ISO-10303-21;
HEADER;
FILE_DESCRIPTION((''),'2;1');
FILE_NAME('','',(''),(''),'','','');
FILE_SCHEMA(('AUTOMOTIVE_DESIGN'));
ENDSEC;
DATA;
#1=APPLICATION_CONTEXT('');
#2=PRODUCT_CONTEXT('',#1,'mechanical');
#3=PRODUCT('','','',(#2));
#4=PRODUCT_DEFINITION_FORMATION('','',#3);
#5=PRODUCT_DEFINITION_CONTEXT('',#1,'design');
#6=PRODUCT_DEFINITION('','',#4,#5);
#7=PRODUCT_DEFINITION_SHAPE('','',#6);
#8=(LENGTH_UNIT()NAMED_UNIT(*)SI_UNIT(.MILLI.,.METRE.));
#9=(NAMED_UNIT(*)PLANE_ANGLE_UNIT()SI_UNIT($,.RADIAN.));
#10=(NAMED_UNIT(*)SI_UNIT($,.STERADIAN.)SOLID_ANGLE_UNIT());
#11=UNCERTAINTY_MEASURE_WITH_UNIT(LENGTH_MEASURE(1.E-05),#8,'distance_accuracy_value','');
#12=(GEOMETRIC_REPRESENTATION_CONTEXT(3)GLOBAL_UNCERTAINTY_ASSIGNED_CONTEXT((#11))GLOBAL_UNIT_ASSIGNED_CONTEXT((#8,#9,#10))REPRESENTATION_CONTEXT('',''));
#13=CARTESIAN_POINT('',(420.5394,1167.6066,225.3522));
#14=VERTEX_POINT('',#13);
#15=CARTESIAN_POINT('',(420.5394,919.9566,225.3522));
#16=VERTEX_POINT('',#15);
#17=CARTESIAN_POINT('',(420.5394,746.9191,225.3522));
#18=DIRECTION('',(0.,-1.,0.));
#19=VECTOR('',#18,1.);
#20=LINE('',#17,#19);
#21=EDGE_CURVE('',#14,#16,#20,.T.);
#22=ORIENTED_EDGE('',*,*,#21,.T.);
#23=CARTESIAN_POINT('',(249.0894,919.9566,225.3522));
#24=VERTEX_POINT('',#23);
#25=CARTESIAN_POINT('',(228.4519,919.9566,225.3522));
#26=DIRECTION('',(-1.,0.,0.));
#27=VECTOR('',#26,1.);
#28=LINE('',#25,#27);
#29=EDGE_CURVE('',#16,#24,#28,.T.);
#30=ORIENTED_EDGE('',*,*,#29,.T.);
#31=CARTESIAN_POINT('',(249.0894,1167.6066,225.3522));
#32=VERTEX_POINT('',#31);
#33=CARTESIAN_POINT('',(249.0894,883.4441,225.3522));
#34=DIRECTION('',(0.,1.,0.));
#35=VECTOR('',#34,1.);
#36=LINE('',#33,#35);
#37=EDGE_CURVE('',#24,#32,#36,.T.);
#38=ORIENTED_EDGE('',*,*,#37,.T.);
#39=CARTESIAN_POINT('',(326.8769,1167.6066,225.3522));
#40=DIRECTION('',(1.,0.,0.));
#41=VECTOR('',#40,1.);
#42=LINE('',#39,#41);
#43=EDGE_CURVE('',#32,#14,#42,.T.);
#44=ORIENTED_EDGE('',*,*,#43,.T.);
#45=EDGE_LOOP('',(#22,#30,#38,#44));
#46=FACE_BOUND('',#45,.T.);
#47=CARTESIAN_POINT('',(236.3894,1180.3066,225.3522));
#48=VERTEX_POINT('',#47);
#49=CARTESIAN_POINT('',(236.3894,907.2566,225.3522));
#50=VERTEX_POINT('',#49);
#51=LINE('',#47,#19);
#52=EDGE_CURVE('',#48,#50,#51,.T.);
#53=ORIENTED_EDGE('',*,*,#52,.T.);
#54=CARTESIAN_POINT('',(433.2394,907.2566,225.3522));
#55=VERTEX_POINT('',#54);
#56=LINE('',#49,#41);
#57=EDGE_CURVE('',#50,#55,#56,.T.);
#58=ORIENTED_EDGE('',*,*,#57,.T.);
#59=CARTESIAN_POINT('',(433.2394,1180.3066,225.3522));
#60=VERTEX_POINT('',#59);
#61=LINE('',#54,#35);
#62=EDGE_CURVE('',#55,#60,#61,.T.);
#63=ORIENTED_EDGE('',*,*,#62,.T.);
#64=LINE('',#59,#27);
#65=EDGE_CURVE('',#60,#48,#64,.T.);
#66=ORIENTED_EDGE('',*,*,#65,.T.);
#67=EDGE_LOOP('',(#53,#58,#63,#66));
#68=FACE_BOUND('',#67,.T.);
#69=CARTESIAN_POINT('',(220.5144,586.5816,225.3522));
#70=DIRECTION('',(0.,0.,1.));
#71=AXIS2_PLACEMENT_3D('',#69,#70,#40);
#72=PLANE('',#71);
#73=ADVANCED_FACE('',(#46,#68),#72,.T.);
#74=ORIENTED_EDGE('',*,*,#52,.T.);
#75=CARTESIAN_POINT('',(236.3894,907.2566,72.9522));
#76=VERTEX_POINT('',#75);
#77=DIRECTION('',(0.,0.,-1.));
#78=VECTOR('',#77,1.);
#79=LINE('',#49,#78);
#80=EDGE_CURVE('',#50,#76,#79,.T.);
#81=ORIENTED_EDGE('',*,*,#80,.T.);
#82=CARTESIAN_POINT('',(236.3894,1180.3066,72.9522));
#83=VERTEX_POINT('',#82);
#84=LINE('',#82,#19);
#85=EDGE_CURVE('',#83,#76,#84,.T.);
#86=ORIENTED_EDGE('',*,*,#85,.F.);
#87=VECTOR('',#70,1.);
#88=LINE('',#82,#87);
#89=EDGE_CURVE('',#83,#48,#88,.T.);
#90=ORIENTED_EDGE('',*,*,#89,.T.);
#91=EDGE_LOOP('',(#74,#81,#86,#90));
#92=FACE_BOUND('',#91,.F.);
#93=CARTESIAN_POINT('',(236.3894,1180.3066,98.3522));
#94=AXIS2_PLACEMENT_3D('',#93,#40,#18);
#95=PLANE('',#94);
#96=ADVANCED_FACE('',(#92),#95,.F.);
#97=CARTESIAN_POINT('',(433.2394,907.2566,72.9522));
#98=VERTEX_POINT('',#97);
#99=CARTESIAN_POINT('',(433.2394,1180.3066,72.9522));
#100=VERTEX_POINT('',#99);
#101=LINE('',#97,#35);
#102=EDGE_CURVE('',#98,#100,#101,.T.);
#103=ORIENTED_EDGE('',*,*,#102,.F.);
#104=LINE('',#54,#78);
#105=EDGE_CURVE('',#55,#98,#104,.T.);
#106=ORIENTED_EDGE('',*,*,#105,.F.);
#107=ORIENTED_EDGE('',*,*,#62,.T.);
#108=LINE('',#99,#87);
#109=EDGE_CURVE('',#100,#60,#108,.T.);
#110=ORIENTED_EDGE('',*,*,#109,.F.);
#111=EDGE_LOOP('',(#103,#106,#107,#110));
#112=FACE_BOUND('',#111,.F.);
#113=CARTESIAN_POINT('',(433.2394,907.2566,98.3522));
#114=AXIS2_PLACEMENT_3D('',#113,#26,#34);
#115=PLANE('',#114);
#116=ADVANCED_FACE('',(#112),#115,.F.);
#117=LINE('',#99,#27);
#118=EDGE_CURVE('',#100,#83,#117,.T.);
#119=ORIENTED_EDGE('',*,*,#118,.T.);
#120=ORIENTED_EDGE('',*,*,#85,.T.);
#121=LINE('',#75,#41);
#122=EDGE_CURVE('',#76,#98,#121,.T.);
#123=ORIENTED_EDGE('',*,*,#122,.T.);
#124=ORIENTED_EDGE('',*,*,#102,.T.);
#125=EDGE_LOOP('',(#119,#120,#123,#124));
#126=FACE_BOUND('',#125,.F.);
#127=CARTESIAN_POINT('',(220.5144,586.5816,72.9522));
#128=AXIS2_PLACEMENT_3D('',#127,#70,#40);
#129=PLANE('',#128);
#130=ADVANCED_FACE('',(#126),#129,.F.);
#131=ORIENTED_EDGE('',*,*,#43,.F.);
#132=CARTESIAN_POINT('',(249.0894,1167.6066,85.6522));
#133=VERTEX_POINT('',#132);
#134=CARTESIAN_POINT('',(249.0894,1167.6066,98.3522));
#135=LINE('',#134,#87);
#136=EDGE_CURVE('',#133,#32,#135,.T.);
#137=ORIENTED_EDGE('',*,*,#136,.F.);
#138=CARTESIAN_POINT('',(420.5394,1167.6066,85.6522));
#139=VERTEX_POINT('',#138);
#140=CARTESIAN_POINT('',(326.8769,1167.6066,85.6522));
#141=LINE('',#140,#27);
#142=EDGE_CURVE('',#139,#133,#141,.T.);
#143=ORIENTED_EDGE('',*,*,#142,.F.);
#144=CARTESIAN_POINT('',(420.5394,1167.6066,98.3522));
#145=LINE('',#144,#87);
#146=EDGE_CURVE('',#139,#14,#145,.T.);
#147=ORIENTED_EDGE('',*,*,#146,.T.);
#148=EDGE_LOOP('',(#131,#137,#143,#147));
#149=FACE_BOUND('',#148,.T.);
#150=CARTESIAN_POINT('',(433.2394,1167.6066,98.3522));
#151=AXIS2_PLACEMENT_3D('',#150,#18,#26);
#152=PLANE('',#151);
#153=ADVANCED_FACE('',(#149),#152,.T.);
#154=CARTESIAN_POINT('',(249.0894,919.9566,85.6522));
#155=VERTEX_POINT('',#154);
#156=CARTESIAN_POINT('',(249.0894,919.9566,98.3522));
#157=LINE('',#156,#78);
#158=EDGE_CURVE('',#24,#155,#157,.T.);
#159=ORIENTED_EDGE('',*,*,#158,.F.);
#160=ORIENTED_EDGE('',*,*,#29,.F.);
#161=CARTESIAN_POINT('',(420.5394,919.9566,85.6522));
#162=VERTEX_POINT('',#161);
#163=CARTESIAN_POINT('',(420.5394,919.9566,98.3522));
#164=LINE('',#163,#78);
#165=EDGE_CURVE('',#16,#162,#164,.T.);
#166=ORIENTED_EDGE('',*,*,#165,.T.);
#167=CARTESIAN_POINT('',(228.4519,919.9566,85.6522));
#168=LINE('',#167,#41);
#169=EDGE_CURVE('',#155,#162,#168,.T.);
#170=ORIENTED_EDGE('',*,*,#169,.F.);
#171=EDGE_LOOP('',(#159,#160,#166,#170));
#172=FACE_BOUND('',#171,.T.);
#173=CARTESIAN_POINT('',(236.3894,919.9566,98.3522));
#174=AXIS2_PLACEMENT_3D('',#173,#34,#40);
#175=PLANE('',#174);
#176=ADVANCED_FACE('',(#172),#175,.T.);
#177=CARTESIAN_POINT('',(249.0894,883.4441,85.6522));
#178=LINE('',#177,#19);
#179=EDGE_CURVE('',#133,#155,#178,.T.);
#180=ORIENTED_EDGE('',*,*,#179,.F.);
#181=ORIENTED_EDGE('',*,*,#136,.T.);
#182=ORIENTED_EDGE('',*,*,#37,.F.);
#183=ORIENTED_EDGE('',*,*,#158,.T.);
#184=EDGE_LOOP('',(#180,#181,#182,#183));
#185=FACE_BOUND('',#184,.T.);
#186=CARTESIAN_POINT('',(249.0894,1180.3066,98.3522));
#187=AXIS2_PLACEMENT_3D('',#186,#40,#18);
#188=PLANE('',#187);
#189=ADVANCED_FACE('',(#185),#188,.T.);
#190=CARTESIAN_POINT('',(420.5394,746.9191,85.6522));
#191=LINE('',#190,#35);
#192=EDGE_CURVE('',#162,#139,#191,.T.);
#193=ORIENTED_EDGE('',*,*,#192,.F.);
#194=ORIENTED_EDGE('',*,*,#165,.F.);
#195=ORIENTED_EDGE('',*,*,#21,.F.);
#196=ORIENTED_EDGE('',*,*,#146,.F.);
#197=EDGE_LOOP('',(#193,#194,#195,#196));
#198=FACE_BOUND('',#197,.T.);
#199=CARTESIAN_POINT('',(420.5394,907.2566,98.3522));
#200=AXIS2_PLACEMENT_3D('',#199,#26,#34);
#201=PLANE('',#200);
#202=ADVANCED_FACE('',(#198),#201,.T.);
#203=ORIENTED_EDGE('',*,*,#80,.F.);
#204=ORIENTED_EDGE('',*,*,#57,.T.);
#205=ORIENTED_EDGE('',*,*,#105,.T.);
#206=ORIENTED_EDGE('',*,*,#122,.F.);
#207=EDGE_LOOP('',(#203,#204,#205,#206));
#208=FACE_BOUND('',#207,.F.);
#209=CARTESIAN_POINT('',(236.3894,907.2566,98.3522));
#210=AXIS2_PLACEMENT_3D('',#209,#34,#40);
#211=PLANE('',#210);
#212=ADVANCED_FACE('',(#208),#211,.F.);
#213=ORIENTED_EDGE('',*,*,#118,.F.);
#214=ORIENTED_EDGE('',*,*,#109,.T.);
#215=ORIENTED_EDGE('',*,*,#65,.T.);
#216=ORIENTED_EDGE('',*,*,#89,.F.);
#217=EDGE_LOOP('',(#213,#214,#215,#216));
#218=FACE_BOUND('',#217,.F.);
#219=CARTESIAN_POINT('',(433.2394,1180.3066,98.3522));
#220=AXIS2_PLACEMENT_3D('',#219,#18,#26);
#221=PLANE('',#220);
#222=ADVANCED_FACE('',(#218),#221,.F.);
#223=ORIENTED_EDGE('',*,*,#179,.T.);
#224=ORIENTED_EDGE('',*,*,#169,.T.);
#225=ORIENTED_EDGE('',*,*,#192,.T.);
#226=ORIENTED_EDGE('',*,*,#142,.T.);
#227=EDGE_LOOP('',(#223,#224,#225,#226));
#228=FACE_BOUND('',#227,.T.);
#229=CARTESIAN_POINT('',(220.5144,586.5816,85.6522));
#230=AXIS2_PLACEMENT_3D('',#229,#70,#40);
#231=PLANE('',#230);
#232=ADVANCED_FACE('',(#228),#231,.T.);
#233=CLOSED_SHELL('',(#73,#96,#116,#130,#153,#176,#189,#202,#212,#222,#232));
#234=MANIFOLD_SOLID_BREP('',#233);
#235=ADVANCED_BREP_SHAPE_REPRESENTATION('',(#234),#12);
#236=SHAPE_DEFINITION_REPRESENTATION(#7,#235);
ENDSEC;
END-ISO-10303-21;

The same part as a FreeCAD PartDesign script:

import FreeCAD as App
import Part
import Sketcher
Q = App.Units.Quantity


def faces_at(feature, points):
    """Names of the faces that lie closest to the given points."""
    faces = feature.Shape.Faces
    near = lambda p: min(range(len(faces)), key=lambda i: faces[i].distToShape(Part.Vertex(*p))[0])
    return sorted({f"Face{near(p) + 1}" for p in points})

doc = App.newDocument("Part")
body = doc.addObject("PartDesign::Body", "Body")

sketch1 = body.newObject("Sketcher::SketchObject", "Sketch")
sketch1.AttachmentSupport = (doc.getObject("XY_Plane"), [""])
sketch1.MapMode = "FlatFace"
sketch1.AttachmentOffset = App.Placement(App.Vector(0, 0, 98.3522), App.Rotation())
sketch1.addGeometry(Part.LineSegment(App.Vector(433.2394, 907.2566, 0), App.Vector(433.2394, 1180.3066, 0)), False)
sketch1.addGeometry(Part.LineSegment(App.Vector(433.2394, 1180.3066, 0), App.Vector(236.3894, 1180.3066, 0)), False)
sketch1.addGeometry(Part.LineSegment(App.Vector(236.3894, 1180.3066, 0), App.Vector(236.3894, 907.2566, 0)), False)
sketch1.addGeometry(Part.LineSegment(App.Vector(236.3894, 907.2566, 0), App.Vector(433.2394, 907.2566, 0)), False)
sketch1.addConstraint(Sketcher.Constraint("Coincident", 0, 2, 1, 1))
sketch1.addConstraint(Sketcher.Constraint("Coincident", 1, 2, 2, 1))
sketch1.addConstraint(Sketcher.Constraint("Coincident", 2, 2, 3, 1))
sketch1.addConstraint(Sketcher.Constraint("Coincident", 3, 2, 0, 1))
sketch1.addConstraint(Sketcher.Constraint("Vertical", 0))
sketch1.addConstraint(Sketcher.Constraint("Horizontal", 1))
sketch1.addConstraint(Sketcher.Constraint("Vertical", 2))
sketch1.addConstraint(Sketcher.Constraint("Horizontal", 3))
sketch1.addConstraint(Sketcher.Constraint("DistanceX", 1, 2, 1, 1, Q("7.75 in")))
sketch1.addConstraint(Sketcher.Constraint("DistanceY", 0, 1, 0, 2, Q("10.75 in")))
sketch1.addConstraint(Sketcher.Constraint("DistanceX", -1, 1, 0, 2, Q("433.2394 mm")))
sketch1.addConstraint(Sketcher.Constraint("DistanceY", -1, 1, 0, 2, Q("1180.3066 mm")))
pad1 = body.newObject("PartDesign::Pad", "Pad")
pad1.Profile = sketch1
pad1.Type = "TwoLengths"
pad1.Length = Q("5 in")
pad1.Length2 = Q("1 in")
doc.recompute()

thickness = body.newObject("PartDesign::Thickness", "Thickness")
thickness.Base = (pad1, faces_at(pad1, [(302.006, 1089.29, 225.352)]))
thickness.Value = Q("0.5 in")
thickness.Reversed = True
thickness.Join = "Intersection"

doc.recompute()
